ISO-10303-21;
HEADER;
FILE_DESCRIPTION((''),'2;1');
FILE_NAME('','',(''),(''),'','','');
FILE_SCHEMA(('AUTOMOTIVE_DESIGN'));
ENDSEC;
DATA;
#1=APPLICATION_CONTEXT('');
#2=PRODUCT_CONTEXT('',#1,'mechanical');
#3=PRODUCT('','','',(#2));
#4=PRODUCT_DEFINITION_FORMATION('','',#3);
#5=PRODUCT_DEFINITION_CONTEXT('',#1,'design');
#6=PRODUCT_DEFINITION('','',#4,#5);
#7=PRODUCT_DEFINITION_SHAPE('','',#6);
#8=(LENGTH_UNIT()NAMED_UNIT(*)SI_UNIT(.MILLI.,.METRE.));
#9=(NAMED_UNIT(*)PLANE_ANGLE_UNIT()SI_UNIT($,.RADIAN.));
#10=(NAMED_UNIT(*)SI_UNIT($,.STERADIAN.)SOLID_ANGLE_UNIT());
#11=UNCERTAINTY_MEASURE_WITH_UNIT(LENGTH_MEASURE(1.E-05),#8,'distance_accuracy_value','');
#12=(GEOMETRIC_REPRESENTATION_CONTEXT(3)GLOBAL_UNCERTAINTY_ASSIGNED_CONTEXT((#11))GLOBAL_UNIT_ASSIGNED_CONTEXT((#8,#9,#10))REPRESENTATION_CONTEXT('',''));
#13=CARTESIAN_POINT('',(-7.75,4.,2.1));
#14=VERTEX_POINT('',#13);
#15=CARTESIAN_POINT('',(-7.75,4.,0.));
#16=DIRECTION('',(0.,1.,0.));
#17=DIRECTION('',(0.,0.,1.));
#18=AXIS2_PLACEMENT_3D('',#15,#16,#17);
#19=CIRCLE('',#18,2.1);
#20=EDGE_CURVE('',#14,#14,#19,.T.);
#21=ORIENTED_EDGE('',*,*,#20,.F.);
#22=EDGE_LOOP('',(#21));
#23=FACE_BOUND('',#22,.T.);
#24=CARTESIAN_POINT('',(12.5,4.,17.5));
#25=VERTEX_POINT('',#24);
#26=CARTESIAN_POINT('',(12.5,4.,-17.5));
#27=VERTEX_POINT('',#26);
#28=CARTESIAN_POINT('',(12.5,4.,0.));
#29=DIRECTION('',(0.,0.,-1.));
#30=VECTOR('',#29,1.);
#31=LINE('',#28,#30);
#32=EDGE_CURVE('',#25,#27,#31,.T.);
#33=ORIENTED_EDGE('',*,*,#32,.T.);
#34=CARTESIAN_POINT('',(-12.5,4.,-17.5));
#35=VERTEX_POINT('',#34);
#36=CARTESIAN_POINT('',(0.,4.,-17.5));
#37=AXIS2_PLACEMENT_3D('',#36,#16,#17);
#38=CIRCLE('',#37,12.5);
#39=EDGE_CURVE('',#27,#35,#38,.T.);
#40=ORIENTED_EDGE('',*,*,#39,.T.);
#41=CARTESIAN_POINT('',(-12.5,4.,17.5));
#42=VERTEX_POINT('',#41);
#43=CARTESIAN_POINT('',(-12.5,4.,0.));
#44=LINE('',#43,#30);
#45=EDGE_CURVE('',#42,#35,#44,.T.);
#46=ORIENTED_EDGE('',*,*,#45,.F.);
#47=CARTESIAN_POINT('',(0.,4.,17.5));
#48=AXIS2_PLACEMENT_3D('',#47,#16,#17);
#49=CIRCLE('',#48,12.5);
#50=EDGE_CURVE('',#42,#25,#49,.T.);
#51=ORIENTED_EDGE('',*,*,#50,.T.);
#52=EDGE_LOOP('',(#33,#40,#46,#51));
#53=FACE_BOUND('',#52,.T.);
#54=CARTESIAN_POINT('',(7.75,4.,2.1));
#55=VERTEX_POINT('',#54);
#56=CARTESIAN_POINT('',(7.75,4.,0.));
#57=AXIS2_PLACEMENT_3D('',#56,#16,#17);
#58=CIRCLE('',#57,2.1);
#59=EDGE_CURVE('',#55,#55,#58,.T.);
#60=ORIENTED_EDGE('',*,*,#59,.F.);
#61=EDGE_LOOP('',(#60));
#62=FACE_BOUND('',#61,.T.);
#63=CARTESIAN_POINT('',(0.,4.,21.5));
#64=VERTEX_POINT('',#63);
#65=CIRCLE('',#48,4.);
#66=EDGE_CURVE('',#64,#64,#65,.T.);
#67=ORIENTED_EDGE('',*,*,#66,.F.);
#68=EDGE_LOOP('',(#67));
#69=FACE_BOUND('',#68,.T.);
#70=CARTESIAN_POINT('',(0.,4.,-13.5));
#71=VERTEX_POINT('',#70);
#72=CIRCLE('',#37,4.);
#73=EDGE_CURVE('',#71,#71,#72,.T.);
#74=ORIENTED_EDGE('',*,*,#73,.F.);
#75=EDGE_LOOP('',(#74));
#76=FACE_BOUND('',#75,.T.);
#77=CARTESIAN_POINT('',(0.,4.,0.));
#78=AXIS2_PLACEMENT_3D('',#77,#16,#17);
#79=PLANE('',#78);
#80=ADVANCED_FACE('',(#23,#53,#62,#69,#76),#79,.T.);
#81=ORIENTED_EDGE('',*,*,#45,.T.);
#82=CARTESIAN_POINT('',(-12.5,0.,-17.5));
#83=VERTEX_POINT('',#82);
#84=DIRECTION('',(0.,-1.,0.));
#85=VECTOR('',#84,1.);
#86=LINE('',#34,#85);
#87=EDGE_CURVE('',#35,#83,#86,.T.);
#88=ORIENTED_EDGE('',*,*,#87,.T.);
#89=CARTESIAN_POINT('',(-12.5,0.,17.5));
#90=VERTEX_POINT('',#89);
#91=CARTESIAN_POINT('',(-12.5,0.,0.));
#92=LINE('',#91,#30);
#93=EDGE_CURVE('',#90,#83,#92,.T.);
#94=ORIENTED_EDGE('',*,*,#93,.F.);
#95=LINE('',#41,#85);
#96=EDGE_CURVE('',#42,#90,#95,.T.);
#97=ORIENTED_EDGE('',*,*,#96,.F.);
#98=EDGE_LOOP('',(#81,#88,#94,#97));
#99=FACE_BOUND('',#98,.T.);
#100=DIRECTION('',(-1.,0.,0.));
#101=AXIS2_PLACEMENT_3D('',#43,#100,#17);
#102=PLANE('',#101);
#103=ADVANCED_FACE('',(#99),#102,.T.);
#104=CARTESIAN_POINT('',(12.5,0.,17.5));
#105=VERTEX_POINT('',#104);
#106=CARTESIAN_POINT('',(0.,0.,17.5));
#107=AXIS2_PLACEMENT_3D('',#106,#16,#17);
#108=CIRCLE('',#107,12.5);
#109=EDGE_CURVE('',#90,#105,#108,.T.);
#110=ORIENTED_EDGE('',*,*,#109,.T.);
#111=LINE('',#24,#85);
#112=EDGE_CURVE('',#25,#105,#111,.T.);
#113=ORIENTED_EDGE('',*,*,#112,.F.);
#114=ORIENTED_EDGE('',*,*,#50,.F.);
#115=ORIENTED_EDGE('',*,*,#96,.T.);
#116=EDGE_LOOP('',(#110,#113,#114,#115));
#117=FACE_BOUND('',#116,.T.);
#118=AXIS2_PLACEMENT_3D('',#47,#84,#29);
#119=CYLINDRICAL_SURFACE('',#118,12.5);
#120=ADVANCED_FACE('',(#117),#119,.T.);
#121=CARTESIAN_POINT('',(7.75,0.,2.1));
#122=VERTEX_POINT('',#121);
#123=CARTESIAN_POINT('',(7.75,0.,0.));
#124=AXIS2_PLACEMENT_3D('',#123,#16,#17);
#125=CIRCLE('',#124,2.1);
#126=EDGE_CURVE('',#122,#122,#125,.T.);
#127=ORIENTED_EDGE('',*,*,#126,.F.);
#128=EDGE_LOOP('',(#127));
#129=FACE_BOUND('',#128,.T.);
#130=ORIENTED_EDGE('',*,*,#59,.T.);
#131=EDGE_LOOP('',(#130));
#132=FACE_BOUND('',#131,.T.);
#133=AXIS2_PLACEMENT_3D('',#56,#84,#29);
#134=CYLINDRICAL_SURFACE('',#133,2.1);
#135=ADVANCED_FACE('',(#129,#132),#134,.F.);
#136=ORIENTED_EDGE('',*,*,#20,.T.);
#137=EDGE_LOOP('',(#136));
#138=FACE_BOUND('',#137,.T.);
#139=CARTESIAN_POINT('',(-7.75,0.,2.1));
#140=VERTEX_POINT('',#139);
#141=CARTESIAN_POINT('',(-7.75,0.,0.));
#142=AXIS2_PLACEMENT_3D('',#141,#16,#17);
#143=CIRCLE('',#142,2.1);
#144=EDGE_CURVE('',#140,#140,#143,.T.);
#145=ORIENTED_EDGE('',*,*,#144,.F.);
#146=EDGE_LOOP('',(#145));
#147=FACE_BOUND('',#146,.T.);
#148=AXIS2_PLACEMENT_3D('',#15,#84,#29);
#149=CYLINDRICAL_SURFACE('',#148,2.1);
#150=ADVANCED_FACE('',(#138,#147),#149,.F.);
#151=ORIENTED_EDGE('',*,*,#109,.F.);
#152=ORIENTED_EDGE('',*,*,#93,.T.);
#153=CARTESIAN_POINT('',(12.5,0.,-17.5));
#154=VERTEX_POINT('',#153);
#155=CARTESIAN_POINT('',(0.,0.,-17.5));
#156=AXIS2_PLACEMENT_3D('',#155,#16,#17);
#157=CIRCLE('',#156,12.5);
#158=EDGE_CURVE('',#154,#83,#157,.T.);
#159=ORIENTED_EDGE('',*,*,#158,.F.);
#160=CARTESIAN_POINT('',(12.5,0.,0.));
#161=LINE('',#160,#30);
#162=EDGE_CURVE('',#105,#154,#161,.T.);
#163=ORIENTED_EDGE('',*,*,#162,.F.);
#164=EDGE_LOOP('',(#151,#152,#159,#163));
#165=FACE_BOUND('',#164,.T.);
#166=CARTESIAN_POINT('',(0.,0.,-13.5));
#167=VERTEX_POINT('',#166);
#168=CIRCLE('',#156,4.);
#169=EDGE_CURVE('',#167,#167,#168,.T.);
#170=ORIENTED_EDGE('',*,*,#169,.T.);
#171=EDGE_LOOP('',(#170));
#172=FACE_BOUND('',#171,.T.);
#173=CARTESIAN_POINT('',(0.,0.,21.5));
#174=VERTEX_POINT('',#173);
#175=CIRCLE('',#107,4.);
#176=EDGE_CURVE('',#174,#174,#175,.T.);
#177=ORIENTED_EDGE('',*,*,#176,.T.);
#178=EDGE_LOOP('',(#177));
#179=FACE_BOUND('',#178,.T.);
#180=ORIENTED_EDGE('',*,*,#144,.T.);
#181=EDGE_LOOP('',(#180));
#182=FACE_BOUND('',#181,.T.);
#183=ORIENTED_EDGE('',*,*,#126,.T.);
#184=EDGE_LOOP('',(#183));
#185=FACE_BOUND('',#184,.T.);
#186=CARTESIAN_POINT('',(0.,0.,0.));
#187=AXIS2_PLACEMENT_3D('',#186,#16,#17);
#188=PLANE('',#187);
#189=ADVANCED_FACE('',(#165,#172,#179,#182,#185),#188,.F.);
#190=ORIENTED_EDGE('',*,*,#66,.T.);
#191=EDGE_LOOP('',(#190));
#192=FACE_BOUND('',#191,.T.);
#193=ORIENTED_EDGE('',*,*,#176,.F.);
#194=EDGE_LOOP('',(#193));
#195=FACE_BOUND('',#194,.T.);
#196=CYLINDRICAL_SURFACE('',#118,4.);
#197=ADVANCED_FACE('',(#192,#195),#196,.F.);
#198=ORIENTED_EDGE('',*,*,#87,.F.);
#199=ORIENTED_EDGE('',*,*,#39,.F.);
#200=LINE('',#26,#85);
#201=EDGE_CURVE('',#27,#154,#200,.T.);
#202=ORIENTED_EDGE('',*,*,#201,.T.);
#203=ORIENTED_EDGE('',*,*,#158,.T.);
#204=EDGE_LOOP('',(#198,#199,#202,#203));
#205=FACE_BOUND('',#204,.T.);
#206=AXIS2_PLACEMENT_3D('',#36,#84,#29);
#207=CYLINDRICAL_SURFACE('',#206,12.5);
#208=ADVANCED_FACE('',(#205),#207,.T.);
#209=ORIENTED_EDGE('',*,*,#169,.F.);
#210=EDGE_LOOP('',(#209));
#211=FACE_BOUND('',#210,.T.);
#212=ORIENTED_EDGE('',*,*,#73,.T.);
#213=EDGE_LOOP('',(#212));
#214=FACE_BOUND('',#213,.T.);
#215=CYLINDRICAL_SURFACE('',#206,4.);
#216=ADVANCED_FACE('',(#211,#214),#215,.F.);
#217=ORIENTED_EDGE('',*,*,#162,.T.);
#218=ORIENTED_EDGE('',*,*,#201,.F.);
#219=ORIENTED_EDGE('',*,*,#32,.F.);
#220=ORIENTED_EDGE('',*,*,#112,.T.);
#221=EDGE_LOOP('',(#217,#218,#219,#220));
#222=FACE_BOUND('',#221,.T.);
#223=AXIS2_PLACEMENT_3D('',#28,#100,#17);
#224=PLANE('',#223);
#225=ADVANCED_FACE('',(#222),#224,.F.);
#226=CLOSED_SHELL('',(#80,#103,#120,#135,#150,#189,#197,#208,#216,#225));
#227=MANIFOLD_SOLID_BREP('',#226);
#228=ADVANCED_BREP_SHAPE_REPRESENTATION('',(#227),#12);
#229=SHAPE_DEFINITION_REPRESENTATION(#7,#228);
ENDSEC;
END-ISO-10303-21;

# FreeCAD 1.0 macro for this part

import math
import FreeCAD as App
import Part
import Sketcher
from FreeCAD import Vector

doc = App.newDocument("Part")
body = doc.addObject("PartDesign::Body", "Body")

sketch1 = body.newObject("Sketcher::SketchObject", "Sketch")
sketch1.AttachmentSupport = (doc.getObject("XZ_Plane"), [""])
sketch1.MapMode = "FlatFace"
sketch1.addGeometry([
    Part.ArcOfCircle(Part.Circle(Vector(0, -17.5, 0), Vector(0, 0, 1), 12.5), math.radians(-180), math.radians(0)),
    Part.LineSegment(Vector(-12.5, -17.5, 0), Vector(-12.5, 17.5, 0)),
    Part.ArcOfCircle(Part.Circle(Vector(0, 17.5, 0), Vector(0, 0, 1), 12.5), math.radians(0), math.radians(180)),
    Part.LineSegment(Vector(12.5, 17.5, 0), Vector(12.5, -17.5, 0)),
    Part.Circle(Vector(0, 17.5, 0), Vector(0, 0, 1), 4),
    Part.Circle(Vector(-7.8, 0, 0), Vector(0, 0, 1), 2.1),
    Part.Circle(Vector(7.8, 0, 0), Vector(0, 0, 1), 2.1),
    Part.Circle(Vector(0, -17.5, 0), Vector(0, 0, 1), 4),
], False)
sketch1.addConstraint([
    Sketcher.Constraint("Tangent", 0, 1, 1, 1),
    Sketcher.Constraint("Tangent", 1, 2, 2, 2),
    Sketcher.Constraint("Tangent", 2, 1, 3, 1),
    Sketcher.Constraint("Tangent", 3, 2, 0, 2),
    Sketcher.Constraint("Vertical", 1),
    Sketcher.Constraint("Vertical", 3),
    Sketcher.Constraint("Coincident", 4, 3, 2, 3),
    Sketcher.Constraint("Coincident", 7, 3, 0, 3),
    Sketcher.Constraint("Equal", 5, 6),
    Sketcher.Constraint("Equal", 4, 7),
    Sketcher.Constraint("Symmetric", 0, 3, 2, 3, -1, 1),
    Sketcher.Constraint("Symmetric", 5, 3, 6, 3, -1, 1),
    Sketcher.Constraint("PointOnObject", 5, 3, -1),
    Sketcher.Constraint("Diameter", 4, 8.0),
    Sketcher.Constraint("Diameter", 5, 4.2),
    Sketcher.Constraint("Radius", 0, 12.5),
    Sketcher.Constraint("DistanceY", 1, 1, 1, 2, 35.0),
    Sketcher.Constraint("DistanceX", 5, 3, 6, 3, 15.5),
])
pad1 = body.newObject("PartDesign::Pad", "Pad")
pad1.Profile = sketch1
pad1.Length = 4
pad1.Reversed = True

doc.recompute()
